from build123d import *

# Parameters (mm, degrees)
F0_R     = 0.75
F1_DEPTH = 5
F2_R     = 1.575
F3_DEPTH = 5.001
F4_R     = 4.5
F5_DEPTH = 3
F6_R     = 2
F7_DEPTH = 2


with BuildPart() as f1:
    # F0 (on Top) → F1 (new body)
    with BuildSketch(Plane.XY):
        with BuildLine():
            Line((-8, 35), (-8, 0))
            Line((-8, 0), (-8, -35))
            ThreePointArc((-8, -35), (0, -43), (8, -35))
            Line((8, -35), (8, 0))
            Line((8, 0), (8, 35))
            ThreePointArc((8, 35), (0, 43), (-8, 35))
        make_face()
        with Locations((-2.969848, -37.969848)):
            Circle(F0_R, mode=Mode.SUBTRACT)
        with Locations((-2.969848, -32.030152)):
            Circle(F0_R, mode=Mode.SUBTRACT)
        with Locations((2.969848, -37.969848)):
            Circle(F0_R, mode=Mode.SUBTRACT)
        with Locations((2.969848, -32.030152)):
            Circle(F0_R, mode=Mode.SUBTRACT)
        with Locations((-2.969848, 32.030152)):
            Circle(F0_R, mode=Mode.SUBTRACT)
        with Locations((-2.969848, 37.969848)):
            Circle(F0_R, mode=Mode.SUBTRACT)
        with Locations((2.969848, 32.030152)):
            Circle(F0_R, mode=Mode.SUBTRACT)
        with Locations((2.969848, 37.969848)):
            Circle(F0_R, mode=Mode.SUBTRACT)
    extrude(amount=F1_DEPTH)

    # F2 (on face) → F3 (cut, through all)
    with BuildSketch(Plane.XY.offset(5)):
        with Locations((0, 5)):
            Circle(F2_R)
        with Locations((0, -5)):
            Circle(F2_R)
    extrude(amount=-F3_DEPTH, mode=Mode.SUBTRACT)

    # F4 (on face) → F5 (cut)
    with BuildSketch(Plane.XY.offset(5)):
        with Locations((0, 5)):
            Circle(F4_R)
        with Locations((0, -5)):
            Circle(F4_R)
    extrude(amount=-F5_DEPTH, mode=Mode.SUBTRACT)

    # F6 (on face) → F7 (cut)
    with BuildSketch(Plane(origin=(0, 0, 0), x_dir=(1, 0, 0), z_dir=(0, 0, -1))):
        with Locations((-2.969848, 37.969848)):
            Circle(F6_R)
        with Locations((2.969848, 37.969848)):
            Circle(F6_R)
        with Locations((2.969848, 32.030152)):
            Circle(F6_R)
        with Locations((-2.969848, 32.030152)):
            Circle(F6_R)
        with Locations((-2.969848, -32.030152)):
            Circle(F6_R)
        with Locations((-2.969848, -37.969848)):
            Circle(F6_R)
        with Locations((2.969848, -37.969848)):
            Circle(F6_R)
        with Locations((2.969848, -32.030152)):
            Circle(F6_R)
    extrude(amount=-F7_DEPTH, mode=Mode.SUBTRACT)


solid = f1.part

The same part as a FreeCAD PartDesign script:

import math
import FreeCAD as App
import Part
import Sketcher
from FreeCAD import Vector
Q = App.Units.Quantity

doc = App.newDocument("Part")
body = doc.addObject("PartDesign::Body", "Body")

# Sketch on XY plane
sketch1 = body.newObject("Sketcher::SketchObject", "Sketch")
sketch1.AttachmentSupport = (doc.getObject("XY_Plane"), [""])
sketch1.MapMode = "FlatFace"
sketch1.addGeometry([
    Part.LineSegment(Vector(-8, 35, 0), Vector(-8, -35, 0)),  # 0
    Part.ArcOfCircle(Part.Circle(Vector(0, -35, 0), Vector(0, 0, 1), 8), math.radians(180), math.radians(360)),  # 1
    Part.LineSegment(Vector(8, -35, 0), Vector(8, 35, 0)),  # 2
    Part.ArcOfCircle(Part.Circle(Vector(0, 35, 0), Vector(0, 0, 1), 8), math.radians(0), math.radians(180)),  # 3
    Part.Circle(Vector(-3, -38, 0), Vector(0, 0, 1), 0.8),  # 4
    Part.Circle(Vector(-3, -32, 0), Vector(0, 0, 1), 0.8),  # 5
    Part.Circle(Vector(3, -38, 0), Vector(0, 0, 1), 0.8),  # 6
    Part.Circle(Vector(3, -32, 0), Vector(0, 0, 1), 0.8),  # 7
    Part.Circle(Vector(-3, 32, 0), Vector(0, 0, 1), 0.8),  # 8
    Part.Circle(Vector(-3, 38, 0), Vector(0, 0, 1), 0.8),  # 9
    Part.Circle(Vector(3, 32, 0), Vector(0, 0, 1), 0.8),  # 10
    Part.Circle(Vector(3, 38, 0), Vector(0, 0, 1), 0.8),  # 11
], False)
sketch1.addConstraint([
    Sketcher.Constraint("Tangent", 0, 2, 1, 1),
    Sketcher.Constraint("Tangent", 1, 2, 2, 1),
    Sketcher.Constraint("Tangent", 2, 2, 3, 1),
    Sketcher.Constraint("Tangent", 3, 2, 0, 1),
    Sketcher.Constraint("Vertical", 0),
    Sketcher.Constraint("Vertical", 2),
    Sketcher.Constraint("Equal", 4, 5),
    Sketcher.Constraint("Equal", 5, 6),
    Sketcher.Constraint("Equal", 6, 7),
    Sketcher.Constraint("Equal", 7, 8),
    Sketcher.Constraint("Equal", 8, 9),
    Sketcher.Constraint("Equal", 9, 10),
    Sketcher.Constraint("Equal", 10, 11),
    Sketcher.Constraint("Symmetric", 1, 3, 3, 3, -1, 1),
    Sketcher.Constraint("Symmetric", 7, 3, 8, 3, -1, 1),
    Sketcher.Constraint("Symmetric", 6, 3, 9, 3, -1, 1),
    Sketcher.Constraint("Symmetric", 5, 3, 10, 3, -1, 1),
    Sketcher.Constraint("Symmetric", 4, 3, 11, 3, -1, 1),
    Sketcher.Constraint("Symmetric", 4, 3, 6, 3, -2),
    Sketcher.Constraint("Symmetric", 5, 3, 7, 3, -2),
    Sketcher.Constraint("Vertical", 4, 3, 5, 3),
    Sketcher.Constraint("Radius", 1, Q("8 mm")),
    Sketcher.Constraint("Diameter", 4, Q("1.5 mm")),
    Sketcher.Constraint("DistanceY", 0, 2, 0, 1, Q("70 mm")),
    Sketcher.Constraint("DistanceY", 4, 3, 8, 3, Q("70 mm")),
    Sketcher.Constraint("DistanceY", 4, 3, 3, 3, Q("72.969848 mm")),
    Sketcher.Constraint("DistanceX", 4, 3, -1, 1, Q("2.969848 mm")),
])
pad1 = body.newObject("PartDesign::Pad", "Pad")
pad1.Profile = sketch1
pad1.Length = 5

# Sketch on XY plane
sketch2 = body.newObject("Sketcher::SketchObject", "Sketch001")
sketch2.AttachmentSupport = (doc.getObject("XY_Plane"), [""])
sketch2.MapMode = "FlatFace"
sketch2.AttachmentOffset = App.Placement(Vector(0, 0, 5), App.Rotation())
sketch2.addGeometry([
    Part.Circle(Vector(0, 5, 0), Vector(0, 0, 1), 1.6),
    Part.Circle(Vector(0, -5, 0), Vector(0, 0, 1), 1.6),
], False)
sketch2.addConstraint([
    Sketcher.Constraint("Equal", 0, 1),
    Sketcher.Constraint("Symmetric", 0, 3, 1, 3, -1, 1),
    Sketcher.Constraint("PointOnObject", 0, 3, -2),
    Sketcher.Constraint("Diameter", 0, Q("3.15 mm")),
    Sketcher.Constraint("DistanceY", -1, 1, 0, 3, Q("5 mm")),
])
pocket1 = body.newObject("PartDesign::Pocket", "Pocket")
pocket1.Profile = sketch2
pocket1.Type = "ThroughAll"

# Sketch on XY plane
sketch3 = body.newObject("Sketcher::SketchObject", "Sketch002")
sketch3.AttachmentSupport = (doc.getObject("XY_Plane"), [""])
sketch3.MapMode = "FlatFace"
sketch3.AttachmentOffset = App.Placement(Vector(0, 0, 5), App.Rotation())
sketch3.addGeometry([
    Part.Circle(Vector(0, 5, 0), Vector(0, 0, 1), 4.5),
    Part.Circle(Vector(0, -5, 0), Vector(0, 0, 1), 4.5),
], False)
sketch3.addConstraint([
    Sketcher.Constraint("Equal", 0, 1),
    Sketcher.Constraint("Symmetric", 0, 3, 1, 3, -1, 1),
    Sketcher.Constraint("PointOnObject", 0, 3, -2),
    Sketcher.Constraint("Diameter", 0, Q("9 mm")),
    Sketcher.Constraint("DistanceY", -1, 1, 0, 3, Q("5 mm")),
])
pocket2 = body.newObject("PartDesign::Pocket", "Pocket001")
pocket2.Profile = sketch3
pocket2.Length = 3

# Sketch on XY plane
sketch4 = body.newObject("Sketcher::SketchObject", "Sketch003")
sketch4.AttachmentSupport = (doc.getObject("XY_Plane"), [""])
sketch4.MapMode = "FlatFace"
sketch4.addGeometry([
    Part.Circle(Vector(-3, -38, 0), Vector(0, 0, 1), 2),  # 0
    Part.Circle(Vector(3, -38, 0), Vector(0, 0, 1), 2),  # 1
    Part.Circle(Vector(3, -32, 0), Vector(0, 0, 1), 2),  # 2
    Part.Circle(Vector(-3, -32, 0), Vector(0, 0, 1), 2),  # 3
    Part.Circle(Vector(-3, 32, 0), Vector(0, 0, 1), 2),  # 4
    Part.Circle(Vector(-3, 38, 0), Vector(0, 0, 1), 2),  # 5
    Part.Circle(Vector(3, 38, 0), Vector(0, 0, 1), 2),  # 6
    Part.Circle(Vector(3, 32, 0), Vector(0, 0, 1), 2),  # 7
], False)
sketch4.addConstraint([
    Sketcher.Constraint("Equal", 0, 1),
    Sketcher.Constraint("Equal", 1, 2),
    Sketcher.Constraint("Equal", 2, 3),
    Sketcher.Constraint("Equal", 3, 4),
    Sketcher.Constraint("Equal", 4, 5),
    Sketcher.Constraint("Equal", 5, 6),
    Sketcher.Constraint("Equal", 6, 7),
    Sketcher.Constraint("Symmetric", 2, 3, 4, 3, -1, 1),
    Sketcher.Constraint("Symmetric", 1, 3, 5, 3, -1, 1),
    Sketcher.Constraint("Symmetric", 0, 3, 6, 3, -1, 1),
    Sketcher.Constraint("Symmetric", 3, 3, 7, 3, -1, 1),
    Sketcher.Constraint("Symmetric", 0, 3, 1, 3, -2),
    Sketcher.Constraint("Symmetric", 2, 3, 3, 3, -2),
    Sketcher.Constraint("Vertical", 1, 3, 2, 3),
    Sketcher.Constraint("Diameter", 0, Q("4 mm")),
    Sketcher.Constraint("DistanceY", 0, 3, 4, 3, Q("70 mm")),
    Sketcher.Constraint("DistanceX", 0, 3, -1, 1, Q("2.969848 mm")),
    Sketcher.Constraint("DistanceY", 0, 3, -1, 1, Q("37.969848 mm")),
])
pocket3 = body.newObject("PartDesign::Pocket", "Pocket002")
pocket3.Profile = sketch4
pocket3.Length = 2
pocket3.Reversed = True

doc.recompute()
